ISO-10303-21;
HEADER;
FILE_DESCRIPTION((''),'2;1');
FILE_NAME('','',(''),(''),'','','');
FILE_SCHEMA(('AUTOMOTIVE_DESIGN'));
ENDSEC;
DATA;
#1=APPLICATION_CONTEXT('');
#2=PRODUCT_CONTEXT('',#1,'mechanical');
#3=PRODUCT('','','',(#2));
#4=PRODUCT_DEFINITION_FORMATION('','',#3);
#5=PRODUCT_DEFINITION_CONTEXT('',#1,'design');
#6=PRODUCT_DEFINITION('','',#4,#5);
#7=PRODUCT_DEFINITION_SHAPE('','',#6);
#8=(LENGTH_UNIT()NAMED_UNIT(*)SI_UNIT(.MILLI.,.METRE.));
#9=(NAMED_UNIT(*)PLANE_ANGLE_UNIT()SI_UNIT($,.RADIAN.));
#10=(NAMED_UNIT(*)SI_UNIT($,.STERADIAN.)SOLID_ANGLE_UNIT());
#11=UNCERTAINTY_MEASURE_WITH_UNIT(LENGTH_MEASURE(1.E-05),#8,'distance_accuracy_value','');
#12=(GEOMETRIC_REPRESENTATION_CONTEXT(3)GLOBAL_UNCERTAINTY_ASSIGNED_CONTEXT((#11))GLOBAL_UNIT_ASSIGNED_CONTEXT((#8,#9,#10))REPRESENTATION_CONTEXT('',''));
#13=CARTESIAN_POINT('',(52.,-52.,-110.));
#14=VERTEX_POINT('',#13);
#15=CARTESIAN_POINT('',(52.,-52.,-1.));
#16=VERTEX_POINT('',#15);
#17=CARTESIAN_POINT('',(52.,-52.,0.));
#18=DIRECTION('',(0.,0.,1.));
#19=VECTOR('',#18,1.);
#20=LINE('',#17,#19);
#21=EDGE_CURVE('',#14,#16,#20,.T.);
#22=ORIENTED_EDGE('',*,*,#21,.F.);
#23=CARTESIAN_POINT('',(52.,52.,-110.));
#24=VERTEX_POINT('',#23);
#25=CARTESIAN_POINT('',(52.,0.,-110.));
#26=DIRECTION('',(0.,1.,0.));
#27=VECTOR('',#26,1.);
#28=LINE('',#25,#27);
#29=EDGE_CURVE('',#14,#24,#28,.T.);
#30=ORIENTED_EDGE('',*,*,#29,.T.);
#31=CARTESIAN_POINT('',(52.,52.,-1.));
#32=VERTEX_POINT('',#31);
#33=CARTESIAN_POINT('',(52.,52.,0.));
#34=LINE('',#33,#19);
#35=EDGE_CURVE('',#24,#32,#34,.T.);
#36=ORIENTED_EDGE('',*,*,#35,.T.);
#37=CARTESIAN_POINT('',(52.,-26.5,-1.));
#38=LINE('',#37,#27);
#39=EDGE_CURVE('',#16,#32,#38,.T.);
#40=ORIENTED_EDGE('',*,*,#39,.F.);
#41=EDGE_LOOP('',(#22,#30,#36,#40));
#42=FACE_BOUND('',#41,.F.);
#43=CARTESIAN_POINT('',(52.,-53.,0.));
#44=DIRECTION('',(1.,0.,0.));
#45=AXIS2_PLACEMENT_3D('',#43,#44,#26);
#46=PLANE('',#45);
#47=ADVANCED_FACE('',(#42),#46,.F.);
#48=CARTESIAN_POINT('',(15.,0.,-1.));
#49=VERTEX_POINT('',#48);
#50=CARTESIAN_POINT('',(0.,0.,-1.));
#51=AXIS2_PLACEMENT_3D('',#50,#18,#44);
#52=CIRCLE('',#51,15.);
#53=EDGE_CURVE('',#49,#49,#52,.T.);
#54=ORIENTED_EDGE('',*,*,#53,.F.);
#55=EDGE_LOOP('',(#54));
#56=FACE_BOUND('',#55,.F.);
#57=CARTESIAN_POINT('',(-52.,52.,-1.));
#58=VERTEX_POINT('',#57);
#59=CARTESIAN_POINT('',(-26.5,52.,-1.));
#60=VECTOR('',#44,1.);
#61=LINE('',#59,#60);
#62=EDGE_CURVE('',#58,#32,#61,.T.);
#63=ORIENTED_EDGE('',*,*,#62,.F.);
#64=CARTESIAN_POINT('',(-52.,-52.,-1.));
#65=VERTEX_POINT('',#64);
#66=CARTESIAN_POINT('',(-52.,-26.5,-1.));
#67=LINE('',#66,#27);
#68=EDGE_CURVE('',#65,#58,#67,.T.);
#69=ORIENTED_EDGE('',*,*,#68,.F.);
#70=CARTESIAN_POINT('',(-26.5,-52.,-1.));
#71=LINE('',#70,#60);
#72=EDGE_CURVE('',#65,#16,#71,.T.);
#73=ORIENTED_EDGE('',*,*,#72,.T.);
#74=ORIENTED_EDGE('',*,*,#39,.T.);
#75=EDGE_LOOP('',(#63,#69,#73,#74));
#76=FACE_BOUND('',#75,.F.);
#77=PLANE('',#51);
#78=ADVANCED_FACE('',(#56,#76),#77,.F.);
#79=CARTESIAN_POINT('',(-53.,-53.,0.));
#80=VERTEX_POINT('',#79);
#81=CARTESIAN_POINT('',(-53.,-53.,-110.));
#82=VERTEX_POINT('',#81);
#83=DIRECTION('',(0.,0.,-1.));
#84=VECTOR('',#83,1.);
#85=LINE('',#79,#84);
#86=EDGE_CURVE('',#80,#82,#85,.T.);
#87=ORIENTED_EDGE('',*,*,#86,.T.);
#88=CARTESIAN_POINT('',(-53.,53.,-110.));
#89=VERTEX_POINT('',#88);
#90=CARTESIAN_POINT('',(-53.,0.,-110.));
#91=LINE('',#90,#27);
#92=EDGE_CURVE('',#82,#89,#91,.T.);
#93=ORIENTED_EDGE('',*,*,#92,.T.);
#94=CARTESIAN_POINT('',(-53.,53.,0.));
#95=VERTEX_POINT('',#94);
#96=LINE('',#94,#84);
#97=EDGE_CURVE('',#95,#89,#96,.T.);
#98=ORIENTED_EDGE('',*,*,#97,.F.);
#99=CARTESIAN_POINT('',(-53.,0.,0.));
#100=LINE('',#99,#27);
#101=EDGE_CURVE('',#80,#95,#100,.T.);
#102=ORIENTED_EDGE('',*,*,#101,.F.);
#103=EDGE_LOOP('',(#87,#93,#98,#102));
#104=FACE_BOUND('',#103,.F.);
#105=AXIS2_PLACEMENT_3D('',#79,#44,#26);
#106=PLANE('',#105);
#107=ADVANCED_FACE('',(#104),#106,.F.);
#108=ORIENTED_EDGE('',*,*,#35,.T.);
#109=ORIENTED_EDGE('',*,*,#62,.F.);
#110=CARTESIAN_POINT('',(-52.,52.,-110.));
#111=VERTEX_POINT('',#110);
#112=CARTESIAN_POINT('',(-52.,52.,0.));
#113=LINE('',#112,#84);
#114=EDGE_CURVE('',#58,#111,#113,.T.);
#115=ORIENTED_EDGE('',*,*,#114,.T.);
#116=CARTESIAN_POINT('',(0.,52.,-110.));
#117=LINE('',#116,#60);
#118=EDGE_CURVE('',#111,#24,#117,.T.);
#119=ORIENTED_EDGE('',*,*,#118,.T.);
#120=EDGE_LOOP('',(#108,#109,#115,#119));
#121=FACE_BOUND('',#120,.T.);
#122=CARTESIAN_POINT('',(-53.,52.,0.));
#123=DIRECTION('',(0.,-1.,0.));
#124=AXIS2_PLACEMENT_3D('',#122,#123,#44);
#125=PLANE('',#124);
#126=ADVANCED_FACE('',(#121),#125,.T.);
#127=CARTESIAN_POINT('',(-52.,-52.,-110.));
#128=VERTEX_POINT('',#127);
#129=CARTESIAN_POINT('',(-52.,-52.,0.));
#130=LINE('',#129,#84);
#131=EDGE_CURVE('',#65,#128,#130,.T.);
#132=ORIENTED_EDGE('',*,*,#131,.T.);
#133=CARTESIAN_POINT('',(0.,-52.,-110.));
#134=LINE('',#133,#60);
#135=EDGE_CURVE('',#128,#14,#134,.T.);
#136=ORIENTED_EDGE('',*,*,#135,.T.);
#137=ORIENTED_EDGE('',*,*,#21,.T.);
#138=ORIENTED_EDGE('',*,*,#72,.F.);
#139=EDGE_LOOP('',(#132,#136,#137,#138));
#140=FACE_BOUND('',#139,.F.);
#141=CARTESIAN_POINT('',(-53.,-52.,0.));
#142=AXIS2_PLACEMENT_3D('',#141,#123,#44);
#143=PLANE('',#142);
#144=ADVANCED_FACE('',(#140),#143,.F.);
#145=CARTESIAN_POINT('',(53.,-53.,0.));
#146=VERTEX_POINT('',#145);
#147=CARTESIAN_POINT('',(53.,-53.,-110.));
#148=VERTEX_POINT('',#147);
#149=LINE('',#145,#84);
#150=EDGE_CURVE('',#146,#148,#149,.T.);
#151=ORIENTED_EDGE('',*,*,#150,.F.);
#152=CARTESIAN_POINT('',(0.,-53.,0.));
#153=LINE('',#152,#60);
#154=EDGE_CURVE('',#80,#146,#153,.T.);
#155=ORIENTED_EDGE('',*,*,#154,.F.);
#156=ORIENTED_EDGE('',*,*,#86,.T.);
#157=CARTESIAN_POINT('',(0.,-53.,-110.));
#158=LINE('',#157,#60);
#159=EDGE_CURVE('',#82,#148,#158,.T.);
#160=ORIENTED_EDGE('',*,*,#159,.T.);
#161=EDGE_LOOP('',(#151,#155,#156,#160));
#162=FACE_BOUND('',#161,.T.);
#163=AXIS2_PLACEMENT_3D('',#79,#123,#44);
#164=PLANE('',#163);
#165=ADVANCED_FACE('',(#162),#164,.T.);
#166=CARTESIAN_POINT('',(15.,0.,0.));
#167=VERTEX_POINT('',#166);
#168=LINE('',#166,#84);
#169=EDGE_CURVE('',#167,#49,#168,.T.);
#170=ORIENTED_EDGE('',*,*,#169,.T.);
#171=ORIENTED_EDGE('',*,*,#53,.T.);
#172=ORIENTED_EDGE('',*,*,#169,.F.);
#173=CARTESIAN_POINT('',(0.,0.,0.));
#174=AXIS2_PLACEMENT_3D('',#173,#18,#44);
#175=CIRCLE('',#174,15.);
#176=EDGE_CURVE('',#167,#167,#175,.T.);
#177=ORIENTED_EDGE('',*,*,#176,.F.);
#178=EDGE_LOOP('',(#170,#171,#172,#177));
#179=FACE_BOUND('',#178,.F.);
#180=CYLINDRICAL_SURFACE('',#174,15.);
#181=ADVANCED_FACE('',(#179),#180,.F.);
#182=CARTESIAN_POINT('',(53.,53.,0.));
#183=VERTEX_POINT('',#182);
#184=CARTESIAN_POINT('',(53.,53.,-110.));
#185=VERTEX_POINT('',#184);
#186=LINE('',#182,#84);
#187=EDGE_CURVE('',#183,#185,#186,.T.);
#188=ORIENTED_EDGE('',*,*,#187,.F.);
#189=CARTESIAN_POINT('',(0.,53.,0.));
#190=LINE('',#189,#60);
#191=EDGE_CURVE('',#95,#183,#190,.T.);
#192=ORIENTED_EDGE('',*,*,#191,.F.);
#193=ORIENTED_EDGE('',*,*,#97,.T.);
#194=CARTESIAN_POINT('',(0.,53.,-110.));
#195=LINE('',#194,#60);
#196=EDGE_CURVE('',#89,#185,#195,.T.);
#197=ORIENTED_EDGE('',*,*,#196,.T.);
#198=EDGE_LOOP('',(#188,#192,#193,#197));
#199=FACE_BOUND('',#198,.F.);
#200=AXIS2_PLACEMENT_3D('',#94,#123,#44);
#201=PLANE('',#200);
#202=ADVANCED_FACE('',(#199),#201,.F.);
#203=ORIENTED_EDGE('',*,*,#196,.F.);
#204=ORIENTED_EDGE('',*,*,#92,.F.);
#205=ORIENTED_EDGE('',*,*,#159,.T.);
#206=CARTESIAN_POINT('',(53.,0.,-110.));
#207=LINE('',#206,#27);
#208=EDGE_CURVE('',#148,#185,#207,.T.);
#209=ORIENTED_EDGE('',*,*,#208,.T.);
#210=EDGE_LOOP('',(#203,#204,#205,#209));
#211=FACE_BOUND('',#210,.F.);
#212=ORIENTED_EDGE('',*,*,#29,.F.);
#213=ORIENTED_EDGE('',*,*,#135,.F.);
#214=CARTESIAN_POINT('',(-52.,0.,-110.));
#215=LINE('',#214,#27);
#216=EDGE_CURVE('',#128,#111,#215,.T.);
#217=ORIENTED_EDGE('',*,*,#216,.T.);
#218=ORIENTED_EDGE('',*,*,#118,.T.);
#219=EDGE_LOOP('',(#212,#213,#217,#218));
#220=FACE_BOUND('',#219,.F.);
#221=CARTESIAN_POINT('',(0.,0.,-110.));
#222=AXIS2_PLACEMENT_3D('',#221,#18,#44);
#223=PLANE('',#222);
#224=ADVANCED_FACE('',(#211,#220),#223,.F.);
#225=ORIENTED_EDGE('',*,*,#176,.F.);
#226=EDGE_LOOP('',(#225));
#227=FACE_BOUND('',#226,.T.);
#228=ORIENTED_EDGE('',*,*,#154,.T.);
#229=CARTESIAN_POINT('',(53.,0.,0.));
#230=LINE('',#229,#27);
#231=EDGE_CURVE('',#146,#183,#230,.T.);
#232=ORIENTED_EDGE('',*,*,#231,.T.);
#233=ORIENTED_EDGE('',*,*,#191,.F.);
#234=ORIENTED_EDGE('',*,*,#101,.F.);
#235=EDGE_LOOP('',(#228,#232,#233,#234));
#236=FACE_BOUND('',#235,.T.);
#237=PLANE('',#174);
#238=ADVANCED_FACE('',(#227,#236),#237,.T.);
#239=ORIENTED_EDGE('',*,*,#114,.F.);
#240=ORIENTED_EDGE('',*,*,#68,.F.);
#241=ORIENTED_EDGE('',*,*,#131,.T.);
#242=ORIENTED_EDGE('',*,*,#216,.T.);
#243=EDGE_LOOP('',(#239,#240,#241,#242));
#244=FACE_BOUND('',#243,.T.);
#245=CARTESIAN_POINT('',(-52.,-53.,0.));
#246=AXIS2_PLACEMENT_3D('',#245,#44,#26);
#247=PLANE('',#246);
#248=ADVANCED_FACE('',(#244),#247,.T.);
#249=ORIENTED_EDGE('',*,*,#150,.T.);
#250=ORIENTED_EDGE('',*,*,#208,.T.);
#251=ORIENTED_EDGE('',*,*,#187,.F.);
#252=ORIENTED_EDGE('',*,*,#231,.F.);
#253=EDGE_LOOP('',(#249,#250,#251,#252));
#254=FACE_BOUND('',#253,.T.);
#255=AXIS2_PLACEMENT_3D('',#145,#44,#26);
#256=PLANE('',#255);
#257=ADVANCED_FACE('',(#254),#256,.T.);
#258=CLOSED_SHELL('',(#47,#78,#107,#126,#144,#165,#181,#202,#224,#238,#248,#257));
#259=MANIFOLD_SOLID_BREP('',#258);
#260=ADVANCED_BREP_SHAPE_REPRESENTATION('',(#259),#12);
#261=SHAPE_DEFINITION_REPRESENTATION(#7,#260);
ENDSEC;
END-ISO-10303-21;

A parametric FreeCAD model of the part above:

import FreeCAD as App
import Part
import Sketcher

V = App.Vector
Q = App.Units.Quantity


def faces_at(feature, points):
    """Names of the faces that lie closest to the given points."""
    faces = feature.Shape.Faces
    near = lambda p: min(range(len(faces)), key=lambda i: faces[i].distToShape(Part.Vertex(*p))[0])
    return sorted({f"Face{near(p) + 1}" for p in points})


def add_polygon(sketch, points):
    """Adds a closed chain of lines whose ends are joined by coincident constraints."""
    first, n = sketch.GeometryCount, len(points)
    for a, b in zip(points, points[1:] + points[:1]):
        sketch.addGeometry(Part.LineSegment(App.Vector(*a, 0), App.Vector(*b, 0)), False)
    for i in range(n):
        sketch.addConstraint(Sketcher.Constraint("Coincident", first + i, 2, first + (i + 1) % n, 1))

doc = App.newDocument("Part")
params = doc.addObject("Spreadsheet::Sheet", "Params")
for row, (alias, value) in enumerate([
    ("sketch1_diameter", "30 mm"),
    ("sketch1_width", "106 mm"),
    ("pad1_length", "110 mm"),
    ("thickness_wall", "1 mm"),
], start=1):
    params.set(f"A{row}", alias)
    params.set(f"B{row}", "=" + value)
    params.setAlias(f"B{row}", alias)

body = doc.addObject("PartDesign::Body", "Body")

# Sketch on XY plane
sketch1 = doc.addObject("Sketcher::SketchObject", "Sketch")
body.addObject(sketch1)
sketch1.AttachmentSupport = (doc.XY_Plane, [""])
sketch1.MapMode = "FlatFace"
add_polygon(sketch1, [(-53, 53), (-53, -53), (53, -53), (53, 53)])  # lines 0-3
sketch1.addGeometry(Part.Circle(V(0, 0, 0), V(0, 0, 1), 15), False)  # 4
sketch1.addConstraint([
    Sketcher.Constraint("Vertical", 0),
    Sketcher.Constraint("Horizontal", 1),
    Sketcher.Constraint("Vertical", 2),
    Sketcher.Constraint("Horizontal", 3),
    Sketcher.Constraint("Coincident", 4, 3, -1, 1),
    Sketcher.Constraint("Symmetric", 0, 2, 2, 2, -1, 1),
    Sketcher.Constraint("Equal", 3, 0),
    Sketcher.Constraint("Diameter", 4, Q("30 mm")),
    Sketcher.Constraint("DistanceX", 1, 1, 1, 2, Q("106 mm")),
])
sketch1.setExpression("Constraints[11]", "Params.sketch1_diameter")
sketch1.setExpression("Constraints[12]", "Params.sketch1_width")
pad1 = doc.addObject("PartDesign::Pad", "Pad")
body.addObject(pad1)
pad1.Profile = sketch1
pad1.setExpression("Length", "Params.pad1_length")
pad1.Reversed = True
doc.recompute()

thickness = doc.addObject("PartDesign::Thickness", "Thickness")
body.addObject(thickness)
thickness.Base = (pad1, faces_at(pad1, [(-21.2, -21.2, -110), (-15, 0, -55)]))
thickness.setExpression("Value", "Params.thickness_wall")
thickness.Reversed = True
thickness.Join = "Arc"

doc.recompute()
